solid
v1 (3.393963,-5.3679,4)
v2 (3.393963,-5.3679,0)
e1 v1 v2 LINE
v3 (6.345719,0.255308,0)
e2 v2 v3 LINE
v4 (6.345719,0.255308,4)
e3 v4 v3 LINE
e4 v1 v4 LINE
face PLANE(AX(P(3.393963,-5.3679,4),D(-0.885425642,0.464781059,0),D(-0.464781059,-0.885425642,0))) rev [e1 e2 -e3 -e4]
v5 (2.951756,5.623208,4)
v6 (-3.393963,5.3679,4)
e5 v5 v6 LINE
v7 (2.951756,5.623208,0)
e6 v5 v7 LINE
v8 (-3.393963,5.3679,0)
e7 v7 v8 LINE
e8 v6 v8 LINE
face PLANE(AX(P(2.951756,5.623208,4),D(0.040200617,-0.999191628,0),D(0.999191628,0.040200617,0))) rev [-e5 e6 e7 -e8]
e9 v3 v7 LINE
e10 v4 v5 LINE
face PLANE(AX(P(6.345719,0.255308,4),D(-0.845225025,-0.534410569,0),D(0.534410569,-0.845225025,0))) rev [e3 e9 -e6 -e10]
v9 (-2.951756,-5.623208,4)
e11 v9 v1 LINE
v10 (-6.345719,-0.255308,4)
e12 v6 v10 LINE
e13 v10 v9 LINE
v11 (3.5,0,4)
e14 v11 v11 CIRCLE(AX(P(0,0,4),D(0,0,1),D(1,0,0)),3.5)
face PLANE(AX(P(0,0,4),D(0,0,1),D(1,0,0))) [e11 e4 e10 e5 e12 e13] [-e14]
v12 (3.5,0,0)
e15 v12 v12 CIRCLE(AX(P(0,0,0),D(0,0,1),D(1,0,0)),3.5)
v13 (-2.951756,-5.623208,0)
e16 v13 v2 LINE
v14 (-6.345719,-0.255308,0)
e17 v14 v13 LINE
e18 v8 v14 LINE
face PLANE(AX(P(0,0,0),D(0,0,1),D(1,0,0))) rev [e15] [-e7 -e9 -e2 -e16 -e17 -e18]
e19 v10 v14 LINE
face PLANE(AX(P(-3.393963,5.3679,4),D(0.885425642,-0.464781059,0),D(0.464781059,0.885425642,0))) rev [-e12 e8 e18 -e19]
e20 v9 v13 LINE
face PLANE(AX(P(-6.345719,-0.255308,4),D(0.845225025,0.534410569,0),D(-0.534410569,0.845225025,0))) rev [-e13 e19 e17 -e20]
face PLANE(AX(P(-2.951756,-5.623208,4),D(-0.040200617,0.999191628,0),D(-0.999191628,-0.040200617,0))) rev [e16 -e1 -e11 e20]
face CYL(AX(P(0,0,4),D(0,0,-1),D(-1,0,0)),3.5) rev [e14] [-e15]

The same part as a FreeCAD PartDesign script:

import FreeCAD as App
import Part
import Sketcher
Q = App.Units.Quantity

doc = App.newDocument("Part")
body = doc.addObject("PartDesign::Body", "Body")

sketch1 = doc.addObject("Sketcher::SketchObject", "Sketch")
body.addObject(sketch1)
sketch1.AttachmentSupport = (doc.XY_Plane, [""])
sketch1.MapMode = "FlatFace"
sketch1.addGeometry(Part.LineSegment(App.Vector(3.393963, -5.3679, 0), App.Vector(6.345719, 0.255308, 0)), False)
sketch1.addGeometry(Part.LineSegment(App.Vector(6.345719, 0.255308, 0), App.Vector(2.951756, 5.623208, 0)), False)
sketch1.addGeometry(Part.LineSegment(App.Vector(2.951756, 5.623208, 0), App.Vector(-3.393963, 5.3679, 0)), False)
sketch1.addGeometry(Part.LineSegment(App.Vector(-3.393963, 5.3679, 0), App.Vector(-6.345719, -0.255308, 0)), False)
sketch1.addGeometry(Part.LineSegment(App.Vector(-6.345719, -0.255308, 0), App.Vector(-2.951756, -5.623208, 0)), False)
sketch1.addGeometry(Part.LineSegment(App.Vector(-2.951756, -5.623208, 0), App.Vector(3.393963, -5.3679, 0)), False)
sketch1.addGeometry(Part.Circle(App.Vector(0, 0, 0), App.Vector(0, 0, 1), 3.5), False)
sketch1.addConstraint(Sketcher.Constraint("Coincident", 0, 2, 1, 1))
sketch1.addConstraint(Sketcher.Constraint("Coincident", 1, 2, 2, 1))
sketch1.addConstraint(Sketcher.Constraint("Coincident", 2, 2, 3, 1))
sketch1.addConstraint(Sketcher.Constraint("Coincident", 3, 2, 4, 1))
sketch1.addConstraint(Sketcher.Constraint("Coincident", 4, 2, 5, 1))
sketch1.addConstraint(Sketcher.Constraint("Coincident", 5, 2, 0, 1))
sketch1.addConstraint(Sketcher.Constraint("Coincident", 6, 3, -1, 1))
sketch1.addConstraint(Sketcher.Constraint("Symmetric", 0, 2, 3, 2, -1, 1))
sketch1.addConstraint(Sketcher.Constraint("Symmetric", 1, 2, 4, 2, -1, 1))
sketch1.addConstraint(Sketcher.Constraint("Symmetric", 2, 2, 5, 2, -1, 1))
sketch1.addConstraint(Sketcher.Constraint("Equal", 0, 1))
sketch1.addConstraint(Sketcher.Constraint("Equal", 1, 2))
sketch1.addConstraint(Sketcher.Constraint("Diameter", 6, Q("7 mm")))
sketch1.addConstraint(Sketcher.Constraint("DistanceY", -1, 1, 2, 2, Q("5.3679 mm")))
sketch1.addConstraint(Sketcher.Constraint("DistanceY", 0, 2, 1, 2, Q("5.3679 mm")))
sketch1.addConstraint(Sketcher.Constraint("DistanceX", -1, 1, 0, 2, Q("6.345719 mm")))
sketch1.addConstraint(Sketcher.Constraint("DistanceY", -1, 1, 0, 2, Q("0.255308 mm")))
pad1 = doc.addObject("PartDesign::Pad", "Pad")
body.addObject(pad1)
pad1.Profile = sketch1
pad1.Length = 4

doc.recompute()
